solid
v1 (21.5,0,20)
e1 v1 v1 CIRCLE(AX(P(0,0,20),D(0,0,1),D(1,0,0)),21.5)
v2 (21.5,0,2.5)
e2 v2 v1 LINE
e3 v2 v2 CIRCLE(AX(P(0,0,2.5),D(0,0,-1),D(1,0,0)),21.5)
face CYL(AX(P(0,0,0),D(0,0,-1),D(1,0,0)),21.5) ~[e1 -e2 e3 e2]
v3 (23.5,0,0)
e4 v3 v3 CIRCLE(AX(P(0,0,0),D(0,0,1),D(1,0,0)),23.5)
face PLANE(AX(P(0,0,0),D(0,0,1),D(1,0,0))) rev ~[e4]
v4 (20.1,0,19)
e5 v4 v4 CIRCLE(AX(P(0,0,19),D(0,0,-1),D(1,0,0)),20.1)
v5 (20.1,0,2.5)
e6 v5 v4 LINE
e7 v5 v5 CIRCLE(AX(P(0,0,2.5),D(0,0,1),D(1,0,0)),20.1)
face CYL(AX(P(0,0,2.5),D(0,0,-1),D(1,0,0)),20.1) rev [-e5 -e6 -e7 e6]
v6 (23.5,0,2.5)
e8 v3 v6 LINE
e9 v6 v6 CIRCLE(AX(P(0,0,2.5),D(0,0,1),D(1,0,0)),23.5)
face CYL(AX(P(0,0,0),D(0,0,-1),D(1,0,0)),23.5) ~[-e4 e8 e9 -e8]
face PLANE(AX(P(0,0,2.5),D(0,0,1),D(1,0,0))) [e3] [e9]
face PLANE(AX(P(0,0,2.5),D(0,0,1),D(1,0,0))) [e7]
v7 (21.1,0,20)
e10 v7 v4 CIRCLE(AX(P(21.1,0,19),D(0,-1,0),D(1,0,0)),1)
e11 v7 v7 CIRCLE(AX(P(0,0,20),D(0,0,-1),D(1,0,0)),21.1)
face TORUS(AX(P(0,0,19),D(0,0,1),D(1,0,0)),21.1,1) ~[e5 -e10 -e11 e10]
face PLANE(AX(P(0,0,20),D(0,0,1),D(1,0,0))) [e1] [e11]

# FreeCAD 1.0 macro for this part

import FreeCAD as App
import Part
import Sketcher

V = App.Vector


def edges_at(feature, points):
    """Names of the edges that pass closest to the given points."""
    edges = feature.Shape.Edges
    near = lambda p: min(range(len(edges)), key=lambda i: edges[i].distToShape(Part.Vertex(*p))[0])
    return sorted({f"Edge{near(p) + 1}" for p in points})

doc = App.newDocument("Part")
params = doc.addObject("Spreadsheet::Sheet", "Params")
for row, (alias, value) in enumerate([
    ("sketch1_diameter", "40.2 mm"),
    ("pad1_length", "30 mm"),
    ("sketch2_diameter", "43 mm"),
    ("pad2_length", "20 mm"),
    ("fillet_radius", "1 mm"),
    ("sketch3_diameter", "47 mm"),
    ("pad3_length", "2.5 mm"),
], start=1):
    params.set(f"A{row}", alias)
    params.set(f"B{row}", "=" + value)
    params.setAlias(f"B{row}", alias)

body = doc.addObject("PartDesign::Body", "Body")

# Sketch on XY plane
sketch1 = body.newObject("Sketcher::SketchObject", "Sketch")
sketch1.AttachmentSupport = (doc.getObject("XY_Plane"), [""])
sketch1.MapMode = "FlatFace"
sketch1.AttachmentOffset = App.Placement(V(0, 0, 2.5), App.Rotation())
sketch1.addGeometry(Part.Circle(V(0, 0, 0), V(0, 0, 1), 20), False)
sketch1.addConstraint(Sketcher.Constraint("Coincident", 0, 3, -1, 1))
sketch1.addConstraint(Sketcher.Constraint("Diameter", 0, 40.2))
sketch1.setExpression("Constraints[1]", "Params.sketch1_diameter")
pad1 = body.newObject("PartDesign::Pad", "Pad")
pad1.Profile = sketch1
pad1.setExpression("Length", "Params.pad1_length")
body2 = doc.addObject("PartDesign::Body", "Body001")

# Sketch on XY plane
sketch2 = body2.newObject("Sketcher::SketchObject", "Sketch001")
sketch2.AttachmentSupport = (doc.getObject("XY_Plane001"), [""])
sketch2.MapMode = "FlatFace"
sketch2.addGeometry(Part.Circle(V(0, 0, 0), V(0, 0, 1), 22), False)
sketch2.addConstraint(Sketcher.Constraint("Coincident", 0, 3, -1, 1))
sketch2.addConstraint(Sketcher.Constraint("Diameter", 0, 43.0))
sketch2.setExpression("Constraints[1]", "Params.sketch2_diameter")
pad2 = body2.newObject("PartDesign::Pad", "Pad001")
pad2.Profile = sketch2
pad2.setExpression("Length", "Params.pad2_length")
doc.recompute()

boolean = body2.newObject("PartDesign::Boolean", "Boolean")
boolean.Type = "Cut"
boolean.addObjects([body])
doc.recompute()

fillet = body2.newObject("PartDesign::Fillet", "Fillet")
fillet.Base = (boolean, edges_at(boolean, [(-20.1, 0, 20)]))
fillet.setExpression("Radius", "Params.fillet_radius")
body3 = doc.addObject("PartDesign::Body", "Body002")

# Sketch on XY plane
sketch3 = body3.newObject("Sketcher::SketchObject", "Sketch002")
sketch3.AttachmentSupport = (doc.getObject("XY_Plane002"), [""])
sketch3.MapMode = "FlatFace"
sketch3.addGeometry(Part.Circle(V(0, 0, 0), V(0, 0, 1), 24), False)
sketch3.addConstraint(Sketcher.Constraint("Coincident", 0, 3, -1, 1))
sketch3.addConstraint(Sketcher.Constraint("Diameter", 0, 47.0))
sketch3.setExpression("Constraints[1]", "Params.sketch3_diameter")
pad3 = body3.newObject("PartDesign::Pad", "Pad002")
pad3.Profile = sketch3
pad3.setExpression("Length", "Params.pad3_length")
doc.recompute()

boolean2 = body3.newObject("PartDesign::Boolean", "Boolean001")
boolean2.Type = "Fuse"
boolean2.addObjects([body2])

doc.recompute()
